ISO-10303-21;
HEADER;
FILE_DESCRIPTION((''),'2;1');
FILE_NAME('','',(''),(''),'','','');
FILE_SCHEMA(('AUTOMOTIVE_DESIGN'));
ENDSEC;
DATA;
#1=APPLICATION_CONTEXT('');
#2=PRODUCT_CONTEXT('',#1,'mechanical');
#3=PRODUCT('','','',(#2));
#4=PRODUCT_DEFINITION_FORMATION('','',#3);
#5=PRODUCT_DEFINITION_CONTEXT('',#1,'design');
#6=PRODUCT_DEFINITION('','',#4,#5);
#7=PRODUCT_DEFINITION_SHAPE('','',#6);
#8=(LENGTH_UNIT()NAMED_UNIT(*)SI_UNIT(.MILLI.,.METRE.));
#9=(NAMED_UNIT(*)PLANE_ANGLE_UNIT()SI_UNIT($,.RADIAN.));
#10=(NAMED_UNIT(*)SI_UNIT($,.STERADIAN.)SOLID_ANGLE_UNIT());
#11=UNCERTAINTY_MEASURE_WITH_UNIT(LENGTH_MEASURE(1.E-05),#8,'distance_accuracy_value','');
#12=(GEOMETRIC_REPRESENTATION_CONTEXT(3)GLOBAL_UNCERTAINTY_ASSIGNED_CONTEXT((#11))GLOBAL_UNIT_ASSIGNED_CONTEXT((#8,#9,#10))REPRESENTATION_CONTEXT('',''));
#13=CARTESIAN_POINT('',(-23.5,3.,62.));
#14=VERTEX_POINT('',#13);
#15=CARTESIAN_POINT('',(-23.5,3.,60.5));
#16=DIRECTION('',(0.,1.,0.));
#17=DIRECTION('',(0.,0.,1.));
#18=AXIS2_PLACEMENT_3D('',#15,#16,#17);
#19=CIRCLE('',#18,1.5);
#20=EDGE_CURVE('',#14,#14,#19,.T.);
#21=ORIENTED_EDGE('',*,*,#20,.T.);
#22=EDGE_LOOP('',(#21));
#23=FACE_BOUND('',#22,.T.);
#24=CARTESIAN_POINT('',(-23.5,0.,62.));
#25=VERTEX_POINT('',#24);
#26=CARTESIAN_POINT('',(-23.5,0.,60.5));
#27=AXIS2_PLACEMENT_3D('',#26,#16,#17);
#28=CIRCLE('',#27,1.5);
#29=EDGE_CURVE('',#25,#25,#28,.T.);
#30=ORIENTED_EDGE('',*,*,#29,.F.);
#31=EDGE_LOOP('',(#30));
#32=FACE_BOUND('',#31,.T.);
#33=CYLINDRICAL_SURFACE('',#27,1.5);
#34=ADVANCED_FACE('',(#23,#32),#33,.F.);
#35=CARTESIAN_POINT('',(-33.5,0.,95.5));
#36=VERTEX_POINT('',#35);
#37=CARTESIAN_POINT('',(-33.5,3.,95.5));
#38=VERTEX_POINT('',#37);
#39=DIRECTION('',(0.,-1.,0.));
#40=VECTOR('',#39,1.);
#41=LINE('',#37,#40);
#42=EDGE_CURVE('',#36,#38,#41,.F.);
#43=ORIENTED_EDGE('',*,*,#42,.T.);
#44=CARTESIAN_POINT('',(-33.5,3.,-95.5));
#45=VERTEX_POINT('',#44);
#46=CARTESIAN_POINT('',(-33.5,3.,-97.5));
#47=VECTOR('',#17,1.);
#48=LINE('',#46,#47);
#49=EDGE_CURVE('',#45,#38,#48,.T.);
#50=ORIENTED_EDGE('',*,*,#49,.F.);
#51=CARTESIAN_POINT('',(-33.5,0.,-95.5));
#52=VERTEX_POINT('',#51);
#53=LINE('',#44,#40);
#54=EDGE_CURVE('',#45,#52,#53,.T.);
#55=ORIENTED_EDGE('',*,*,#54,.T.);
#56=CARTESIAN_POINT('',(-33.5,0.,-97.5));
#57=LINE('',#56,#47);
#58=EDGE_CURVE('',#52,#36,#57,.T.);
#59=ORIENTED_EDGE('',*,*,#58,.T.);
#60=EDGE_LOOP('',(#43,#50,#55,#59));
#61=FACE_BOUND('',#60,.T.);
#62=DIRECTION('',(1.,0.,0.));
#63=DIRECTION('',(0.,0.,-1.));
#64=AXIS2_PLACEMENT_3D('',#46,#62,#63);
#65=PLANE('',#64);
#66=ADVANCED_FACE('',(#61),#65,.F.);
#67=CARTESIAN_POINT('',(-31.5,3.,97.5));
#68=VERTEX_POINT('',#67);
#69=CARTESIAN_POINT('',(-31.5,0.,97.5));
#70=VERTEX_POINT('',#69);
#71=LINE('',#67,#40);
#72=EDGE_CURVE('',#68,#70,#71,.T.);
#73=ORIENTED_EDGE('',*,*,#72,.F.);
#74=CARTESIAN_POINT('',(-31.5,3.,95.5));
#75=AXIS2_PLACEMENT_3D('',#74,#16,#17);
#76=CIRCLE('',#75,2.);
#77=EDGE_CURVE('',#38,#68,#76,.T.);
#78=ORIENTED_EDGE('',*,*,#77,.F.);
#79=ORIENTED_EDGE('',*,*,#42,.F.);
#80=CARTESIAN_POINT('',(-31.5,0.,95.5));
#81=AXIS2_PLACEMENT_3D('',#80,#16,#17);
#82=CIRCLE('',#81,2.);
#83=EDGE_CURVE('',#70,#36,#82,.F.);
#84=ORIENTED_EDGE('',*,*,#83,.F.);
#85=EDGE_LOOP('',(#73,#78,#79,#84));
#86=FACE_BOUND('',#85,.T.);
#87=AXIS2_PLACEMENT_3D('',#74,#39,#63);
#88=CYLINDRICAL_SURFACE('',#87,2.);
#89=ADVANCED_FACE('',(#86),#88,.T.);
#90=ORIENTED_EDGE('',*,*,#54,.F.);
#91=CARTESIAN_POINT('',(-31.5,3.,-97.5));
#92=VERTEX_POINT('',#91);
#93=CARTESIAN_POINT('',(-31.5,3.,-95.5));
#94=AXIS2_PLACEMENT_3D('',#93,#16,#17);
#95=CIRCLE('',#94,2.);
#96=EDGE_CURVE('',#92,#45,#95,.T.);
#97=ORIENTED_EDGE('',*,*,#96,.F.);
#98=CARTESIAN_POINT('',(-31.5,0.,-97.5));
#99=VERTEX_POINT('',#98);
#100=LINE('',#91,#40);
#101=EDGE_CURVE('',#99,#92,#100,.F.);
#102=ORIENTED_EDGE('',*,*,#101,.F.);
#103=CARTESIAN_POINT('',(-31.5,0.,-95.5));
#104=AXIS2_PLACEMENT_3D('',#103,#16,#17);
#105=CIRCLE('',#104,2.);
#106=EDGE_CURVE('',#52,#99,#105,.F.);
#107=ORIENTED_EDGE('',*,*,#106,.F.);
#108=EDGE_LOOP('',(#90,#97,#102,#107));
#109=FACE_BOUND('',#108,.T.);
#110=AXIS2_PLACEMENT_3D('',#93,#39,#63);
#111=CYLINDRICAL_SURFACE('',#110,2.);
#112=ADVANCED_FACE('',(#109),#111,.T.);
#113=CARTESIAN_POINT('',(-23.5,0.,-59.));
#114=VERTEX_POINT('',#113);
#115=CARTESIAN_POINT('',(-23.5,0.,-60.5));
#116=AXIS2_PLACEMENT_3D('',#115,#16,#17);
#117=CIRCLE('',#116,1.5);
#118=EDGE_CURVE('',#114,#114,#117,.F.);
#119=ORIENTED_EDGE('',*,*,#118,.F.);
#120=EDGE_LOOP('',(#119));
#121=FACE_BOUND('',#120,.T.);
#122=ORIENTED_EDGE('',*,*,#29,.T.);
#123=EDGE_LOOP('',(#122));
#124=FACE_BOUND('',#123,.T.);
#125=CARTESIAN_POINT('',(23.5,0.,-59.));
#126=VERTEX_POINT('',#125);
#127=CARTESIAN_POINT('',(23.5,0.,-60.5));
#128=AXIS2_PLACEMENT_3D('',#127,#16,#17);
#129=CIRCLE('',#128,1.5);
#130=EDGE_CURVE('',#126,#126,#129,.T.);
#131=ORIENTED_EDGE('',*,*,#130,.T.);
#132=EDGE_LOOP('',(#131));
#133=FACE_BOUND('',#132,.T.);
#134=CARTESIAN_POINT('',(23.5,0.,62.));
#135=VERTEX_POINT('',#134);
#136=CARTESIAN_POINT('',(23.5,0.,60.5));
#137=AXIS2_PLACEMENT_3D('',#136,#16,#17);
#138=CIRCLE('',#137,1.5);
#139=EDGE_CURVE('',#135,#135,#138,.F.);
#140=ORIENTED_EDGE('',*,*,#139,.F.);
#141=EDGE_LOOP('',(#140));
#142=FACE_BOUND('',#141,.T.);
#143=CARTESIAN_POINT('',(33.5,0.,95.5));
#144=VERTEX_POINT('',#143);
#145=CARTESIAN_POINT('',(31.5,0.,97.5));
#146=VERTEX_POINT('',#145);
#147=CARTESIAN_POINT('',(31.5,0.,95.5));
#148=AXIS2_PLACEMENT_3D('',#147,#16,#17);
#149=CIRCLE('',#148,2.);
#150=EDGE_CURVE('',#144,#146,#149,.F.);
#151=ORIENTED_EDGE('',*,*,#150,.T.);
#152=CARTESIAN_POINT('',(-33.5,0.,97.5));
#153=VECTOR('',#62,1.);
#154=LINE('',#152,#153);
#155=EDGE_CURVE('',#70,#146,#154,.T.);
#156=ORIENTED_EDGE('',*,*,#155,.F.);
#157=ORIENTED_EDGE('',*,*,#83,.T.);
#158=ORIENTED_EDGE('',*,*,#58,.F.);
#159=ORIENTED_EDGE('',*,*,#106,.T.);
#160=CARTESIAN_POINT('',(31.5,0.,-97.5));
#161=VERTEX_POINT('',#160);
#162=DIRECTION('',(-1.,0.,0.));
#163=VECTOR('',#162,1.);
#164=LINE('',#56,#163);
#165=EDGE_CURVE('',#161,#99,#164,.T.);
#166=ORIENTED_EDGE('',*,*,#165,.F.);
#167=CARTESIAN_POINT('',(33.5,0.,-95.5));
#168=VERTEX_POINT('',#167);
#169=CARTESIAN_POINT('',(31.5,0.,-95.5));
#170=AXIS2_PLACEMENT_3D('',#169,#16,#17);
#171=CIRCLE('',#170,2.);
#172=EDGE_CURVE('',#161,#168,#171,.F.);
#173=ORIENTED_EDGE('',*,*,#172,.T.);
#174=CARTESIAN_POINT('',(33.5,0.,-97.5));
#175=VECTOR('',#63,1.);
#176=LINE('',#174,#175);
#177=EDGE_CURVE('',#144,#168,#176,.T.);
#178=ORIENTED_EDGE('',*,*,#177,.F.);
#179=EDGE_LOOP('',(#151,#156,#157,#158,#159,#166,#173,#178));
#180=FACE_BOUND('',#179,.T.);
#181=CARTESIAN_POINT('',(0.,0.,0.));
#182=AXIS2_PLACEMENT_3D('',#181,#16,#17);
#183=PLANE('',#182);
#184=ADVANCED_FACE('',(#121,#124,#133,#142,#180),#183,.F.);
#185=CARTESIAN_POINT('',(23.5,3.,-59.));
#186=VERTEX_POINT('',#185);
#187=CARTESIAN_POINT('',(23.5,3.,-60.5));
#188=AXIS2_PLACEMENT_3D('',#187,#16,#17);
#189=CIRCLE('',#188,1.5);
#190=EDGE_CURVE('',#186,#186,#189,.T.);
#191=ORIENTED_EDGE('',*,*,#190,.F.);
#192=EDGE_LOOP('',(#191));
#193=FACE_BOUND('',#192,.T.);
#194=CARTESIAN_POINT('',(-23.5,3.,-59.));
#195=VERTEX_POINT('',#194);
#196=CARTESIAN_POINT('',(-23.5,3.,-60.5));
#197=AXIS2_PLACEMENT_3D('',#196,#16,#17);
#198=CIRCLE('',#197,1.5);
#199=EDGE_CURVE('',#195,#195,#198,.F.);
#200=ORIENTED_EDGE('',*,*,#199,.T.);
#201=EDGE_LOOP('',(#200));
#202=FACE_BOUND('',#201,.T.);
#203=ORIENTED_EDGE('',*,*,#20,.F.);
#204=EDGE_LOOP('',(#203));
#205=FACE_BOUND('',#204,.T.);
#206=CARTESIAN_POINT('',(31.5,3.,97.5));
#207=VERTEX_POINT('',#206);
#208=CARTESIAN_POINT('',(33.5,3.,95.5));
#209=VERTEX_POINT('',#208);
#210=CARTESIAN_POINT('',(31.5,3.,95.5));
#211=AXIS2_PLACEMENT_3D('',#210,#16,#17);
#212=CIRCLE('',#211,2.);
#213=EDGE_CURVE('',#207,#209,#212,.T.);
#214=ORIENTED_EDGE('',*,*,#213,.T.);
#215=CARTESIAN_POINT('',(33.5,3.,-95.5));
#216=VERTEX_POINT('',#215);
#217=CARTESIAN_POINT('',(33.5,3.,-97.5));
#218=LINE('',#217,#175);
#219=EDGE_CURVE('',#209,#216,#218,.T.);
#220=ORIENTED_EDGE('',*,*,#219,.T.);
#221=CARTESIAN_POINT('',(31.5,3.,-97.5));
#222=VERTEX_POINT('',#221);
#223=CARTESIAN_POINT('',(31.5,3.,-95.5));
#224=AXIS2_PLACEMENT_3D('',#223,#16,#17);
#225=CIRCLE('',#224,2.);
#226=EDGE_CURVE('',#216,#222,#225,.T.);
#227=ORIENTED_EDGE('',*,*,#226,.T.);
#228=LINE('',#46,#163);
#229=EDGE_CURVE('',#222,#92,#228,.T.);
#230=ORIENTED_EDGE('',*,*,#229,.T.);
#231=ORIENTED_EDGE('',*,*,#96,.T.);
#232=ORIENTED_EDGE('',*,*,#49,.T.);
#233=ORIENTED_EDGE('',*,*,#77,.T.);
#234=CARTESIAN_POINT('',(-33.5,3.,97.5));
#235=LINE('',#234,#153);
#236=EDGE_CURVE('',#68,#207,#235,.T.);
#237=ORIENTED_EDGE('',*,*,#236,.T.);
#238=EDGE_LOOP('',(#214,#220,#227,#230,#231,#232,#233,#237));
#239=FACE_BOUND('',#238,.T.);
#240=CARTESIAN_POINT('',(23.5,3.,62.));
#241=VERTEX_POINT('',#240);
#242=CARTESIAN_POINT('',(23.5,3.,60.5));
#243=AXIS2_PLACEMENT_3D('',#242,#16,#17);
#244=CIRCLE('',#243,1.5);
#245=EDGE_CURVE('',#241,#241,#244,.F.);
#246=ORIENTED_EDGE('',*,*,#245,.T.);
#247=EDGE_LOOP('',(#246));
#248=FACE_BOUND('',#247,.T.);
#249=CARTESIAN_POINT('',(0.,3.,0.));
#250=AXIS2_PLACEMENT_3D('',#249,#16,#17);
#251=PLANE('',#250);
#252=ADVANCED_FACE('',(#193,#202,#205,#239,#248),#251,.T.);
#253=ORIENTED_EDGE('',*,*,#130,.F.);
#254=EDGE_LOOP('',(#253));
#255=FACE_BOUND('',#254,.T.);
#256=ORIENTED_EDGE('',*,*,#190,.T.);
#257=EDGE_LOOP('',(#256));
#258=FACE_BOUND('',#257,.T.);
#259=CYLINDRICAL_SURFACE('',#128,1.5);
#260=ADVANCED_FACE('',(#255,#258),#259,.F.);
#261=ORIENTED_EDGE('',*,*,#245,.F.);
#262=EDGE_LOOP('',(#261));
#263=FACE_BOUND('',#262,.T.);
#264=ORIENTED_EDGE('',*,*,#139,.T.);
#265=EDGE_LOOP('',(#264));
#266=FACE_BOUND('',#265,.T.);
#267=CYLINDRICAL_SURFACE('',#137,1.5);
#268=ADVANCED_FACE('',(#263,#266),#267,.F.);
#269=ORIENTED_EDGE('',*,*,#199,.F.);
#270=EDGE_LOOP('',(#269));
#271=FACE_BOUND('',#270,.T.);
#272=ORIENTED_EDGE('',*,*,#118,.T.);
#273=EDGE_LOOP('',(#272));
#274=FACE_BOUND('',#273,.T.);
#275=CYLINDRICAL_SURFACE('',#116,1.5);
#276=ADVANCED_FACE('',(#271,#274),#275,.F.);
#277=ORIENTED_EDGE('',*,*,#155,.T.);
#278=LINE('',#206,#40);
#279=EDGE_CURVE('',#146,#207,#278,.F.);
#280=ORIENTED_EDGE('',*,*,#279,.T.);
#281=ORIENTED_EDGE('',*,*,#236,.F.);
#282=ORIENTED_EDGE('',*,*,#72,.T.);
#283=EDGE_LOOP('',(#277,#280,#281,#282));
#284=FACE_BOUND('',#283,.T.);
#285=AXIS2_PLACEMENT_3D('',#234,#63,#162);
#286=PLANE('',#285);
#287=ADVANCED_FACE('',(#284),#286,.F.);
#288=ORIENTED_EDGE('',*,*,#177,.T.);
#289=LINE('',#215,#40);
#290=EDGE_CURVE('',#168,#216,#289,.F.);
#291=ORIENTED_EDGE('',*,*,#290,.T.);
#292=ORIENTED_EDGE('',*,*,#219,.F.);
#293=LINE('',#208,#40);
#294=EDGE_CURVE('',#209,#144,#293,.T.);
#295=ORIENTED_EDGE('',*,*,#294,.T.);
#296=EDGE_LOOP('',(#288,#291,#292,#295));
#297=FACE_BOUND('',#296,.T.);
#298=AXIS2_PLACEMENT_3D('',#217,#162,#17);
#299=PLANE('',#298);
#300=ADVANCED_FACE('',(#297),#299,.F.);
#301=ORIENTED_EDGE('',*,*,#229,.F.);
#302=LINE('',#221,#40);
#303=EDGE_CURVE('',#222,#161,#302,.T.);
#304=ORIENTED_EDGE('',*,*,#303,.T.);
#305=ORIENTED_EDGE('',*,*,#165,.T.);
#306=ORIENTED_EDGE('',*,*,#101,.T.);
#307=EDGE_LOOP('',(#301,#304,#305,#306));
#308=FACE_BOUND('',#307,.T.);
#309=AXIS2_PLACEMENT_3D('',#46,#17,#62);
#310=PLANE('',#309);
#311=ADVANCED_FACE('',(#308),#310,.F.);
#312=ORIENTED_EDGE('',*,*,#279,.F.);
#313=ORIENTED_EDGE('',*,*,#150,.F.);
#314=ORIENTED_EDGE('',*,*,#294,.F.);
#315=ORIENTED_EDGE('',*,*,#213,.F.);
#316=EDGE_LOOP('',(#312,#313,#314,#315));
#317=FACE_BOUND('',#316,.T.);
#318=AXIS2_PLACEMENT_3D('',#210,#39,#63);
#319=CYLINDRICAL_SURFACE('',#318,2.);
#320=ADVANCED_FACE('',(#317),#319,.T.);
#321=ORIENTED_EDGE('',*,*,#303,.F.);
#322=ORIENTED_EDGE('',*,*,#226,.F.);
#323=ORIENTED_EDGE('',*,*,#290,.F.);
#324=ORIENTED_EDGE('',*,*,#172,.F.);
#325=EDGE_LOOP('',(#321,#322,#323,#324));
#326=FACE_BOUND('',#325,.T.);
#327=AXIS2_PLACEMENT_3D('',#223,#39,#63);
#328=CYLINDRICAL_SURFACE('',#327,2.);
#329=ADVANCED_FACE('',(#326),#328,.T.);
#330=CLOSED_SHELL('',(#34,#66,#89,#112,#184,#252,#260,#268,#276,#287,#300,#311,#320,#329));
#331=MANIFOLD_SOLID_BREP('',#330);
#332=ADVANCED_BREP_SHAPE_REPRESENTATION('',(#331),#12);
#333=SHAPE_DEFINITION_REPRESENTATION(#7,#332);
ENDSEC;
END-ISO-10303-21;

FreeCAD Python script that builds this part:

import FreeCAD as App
import Part
import Sketcher
Q = App.Units.Quantity


def edges_at(feature, points):
    """Names of the edges that pass closest to the given points."""
    edges = feature.Shape.Edges
    near = lambda p: min(range(len(edges)), key=lambda i: edges[i].distToShape(Part.Vertex(*p))[0])
    return sorted({f"Edge{near(p) + 1}" for p in points})

doc = App.newDocument("Part")
body = doc.addObject("PartDesign::Body", "Body")

sketch1 = body.newObject("Sketcher::SketchObject", "Sketch")
sketch1.AttachmentSupport = (doc.getObject("XZ_Plane"), [""])
sketch1.MapMode = "FlatFace"
sketch1.addGeometry(Part.LineSegment(App.Vector(-34, -98, 0), App.Vector(-34, 98, 0)), False)
sketch1.addGeometry(Part.LineSegment(App.Vector(-34, 98, 0), App.Vector(34, 98, 0)), False)
sketch1.addGeometry(Part.LineSegment(App.Vector(34, 98, 0), App.Vector(34, -98, 0)), False)
sketch1.addGeometry(Part.LineSegment(App.Vector(34, -98, 0), App.Vector(-34, -98, 0)), False)
sketch1.addConstraint(Sketcher.Constraint("Coincident", 0, 2, 1, 1))
sketch1.addConstraint(Sketcher.Constraint("Coincident", 1, 2, 2, 1))
sketch1.addConstraint(Sketcher.Constraint("Coincident", 2, 2, 3, 1))
sketch1.addConstraint(Sketcher.Constraint("Coincident", 3, 2, 0, 1))
sketch1.addConstraint(Sketcher.Constraint("Vertical", 0))
sketch1.addConstraint(Sketcher.Constraint("Horizontal", 1))
sketch1.addConstraint(Sketcher.Constraint("Vertical", 2))
sketch1.addConstraint(Sketcher.Constraint("Horizontal", 3))
sketch1.addConstraint(Sketcher.Constraint("Symmetric", 0, 2, 2, 2, -1, 1))
sketch1.addConstraint(Sketcher.Constraint("DistanceX", 1, 1, 1, 2, Q("67 mm")))
sketch1.addConstraint(Sketcher.Constraint("DistanceY", 0, 1, 0, 2, Q("195 mm")))
pad1 = body.newObject("PartDesign::Pad", "Pad")
pad1.Profile = sketch1
pad1.Length = 3
pad1.Reversed = True

sketch2 = body.newObject("Sketcher::SketchObject", "Sketch001")
sketch2.AttachmentSupport = (doc.getObject("XZ_Plane"), [""])
sketch2.MapMode = "FlatFace"
sketch2.AttachmentOffset = App.Placement(App.Vector(0, 0, -3), App.Rotation())
sketch2.addGeometry(Part.Circle(App.Vector(-23.5, -60.5, 0), App.Vector(0, 0, 1), 1.5), False)
sketch2.addGeometry(Part.Circle(App.Vector(23.5, -60.5, 0), App.Vector(0, 0, 1), 1.5), False)
sketch2.addGeometry(Part.Circle(App.Vector(-23.5, 60.5, 0), App.Vector(0, 0, 1), 1.5), False)
sketch2.addGeometry(Part.Circle(App.Vector(23.5, 60.5, 0), App.Vector(0, 0, 1), 1.5), False)
sketch2.addConstraint(Sketcher.Constraint("Equal", 0, 1))
sketch2.addConstraint(Sketcher.Constraint("Equal", 1, 2))
sketch2.addConstraint(Sketcher.Constraint("Equal", 2, 3))
sketch2.addConstraint(Sketcher.Constraint("Symmetric", 1, 3, 2, 3, -1, 1))
sketch2.addConstraint(Sketcher.Constraint("Symmetric", 0, 3, 3, 3, -1, 1))
sketch2.addConstraint(Sketcher.Constraint("Symmetric", 0, 3, 1, 3, -2))
sketch2.addConstraint(Sketcher.Constraint("Diameter", 0, Q("3 mm")))
sketch2.addConstraint(Sketcher.Constraint("DistanceX", 0, 3, 1, 3, Q("47 mm")))
sketch2.addConstraint(Sketcher.Constraint("DistanceY", 0, 3, 2, 3, Q("121 mm")))
pocket1 = body.newObject("PartDesign::Pocket", "Pocket")
pocket1.Profile = sketch2
pocket1.Length = 3
pocket1.Reversed = True
doc.recompute()

fillet = body.newObject("PartDesign::Fillet", "Fillet")
fillet.Base = (pocket1, edges_at(pocket1, [
    (33.5, 1.5, 97.5),
    (-33.5, 1.5, 97.5),
    (-33.5, 1.5, -97.5),
    (33.5, 1.5, -97.5),
]))
fillet.Radius = 2

doc.recompute()
